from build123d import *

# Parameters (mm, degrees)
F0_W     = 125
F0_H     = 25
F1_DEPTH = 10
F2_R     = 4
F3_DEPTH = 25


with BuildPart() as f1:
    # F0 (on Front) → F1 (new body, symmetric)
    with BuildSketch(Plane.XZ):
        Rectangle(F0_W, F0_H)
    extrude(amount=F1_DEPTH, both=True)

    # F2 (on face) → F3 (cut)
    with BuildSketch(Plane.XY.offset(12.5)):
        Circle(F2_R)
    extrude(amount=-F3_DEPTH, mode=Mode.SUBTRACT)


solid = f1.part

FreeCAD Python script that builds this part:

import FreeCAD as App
import Part
import Sketcher
Q = App.Units.Quantity


def add_polygon(sketch, points):
    """Adds a closed chain of lines whose ends are joined by coincident constraints."""
    first, n = sketch.GeometryCount, len(points)
    for a, b in zip(points, points[1:] + points[:1]):
        sketch.addGeometry(Part.LineSegment(App.Vector(*a, 0), App.Vector(*b, 0)), False)
    for i in range(n):
        sketch.addConstraint(Sketcher.Constraint("Coincident", first + i, 2, first + (i + 1) % n, 1))

doc = App.newDocument("Part")
body = doc.addObject("PartDesign::Body", "Body")

sketch1 = doc.addObject("Sketcher::SketchObject", "Sketch")
body.addObject(sketch1)
sketch1.AttachmentSupport = (doc.XZ_Plane, [""])
sketch1.MapMode = "FlatFace"
add_polygon(sketch1, [(-62.5, 12.5), (-62.5, -12.5), (62.5, -12.5), (62.5, 12.5)])
sketch1.addConstraint(Sketcher.Constraint("Vertical", 0))
sketch1.addConstraint(Sketcher.Constraint("Horizontal", 1))
sketch1.addConstraint(Sketcher.Constraint("Vertical", 2))
sketch1.addConstraint(Sketcher.Constraint("Horizontal", 3))
sketch1.addConstraint(Sketcher.Constraint("Symmetric", 0, 2, 2, 2, -1, 1))
sketch1.addConstraint(Sketcher.Constraint("DistanceX", 1, 1, 1, 2, Q("125 mm")))
sketch1.addConstraint(Sketcher.Constraint("DistanceY", 0, 2, 0, 1, Q("25 mm")))
pad1 = doc.addObject("PartDesign::Pad", "Pad")
body.addObject(pad1)
pad1.Profile = sketch1
pad1.Length = 20
pad1.Midplane = True

sketch2 = doc.addObject("Sketcher::SketchObject", "Sketch001")
body.addObject(sketch2)
sketch2.AttachmentSupport = (doc.XY_Plane, [""])
sketch2.MapMode = "FlatFace"
sketch2.AttachmentOffset = App.Placement(App.Vector(0, 0, 12.5), App.Rotation())
sketch2.addGeometry(Part.Circle(App.Vector(0, 0, 0), App.Vector(0, 0, 1), 4), False)
sketch2.addConstraint(Sketcher.Constraint("Coincident", 0, 3, -1, 1))
sketch2.addConstraint(Sketcher.Constraint("Diameter", 0, Q("8 mm")))
pocket1 = doc.addObject("PartDesign::Pocket", "Pocket")
body.addObject(pocket1)
pocket1.Profile = sketch2
pocket1.Length = 25

doc.recompute()
